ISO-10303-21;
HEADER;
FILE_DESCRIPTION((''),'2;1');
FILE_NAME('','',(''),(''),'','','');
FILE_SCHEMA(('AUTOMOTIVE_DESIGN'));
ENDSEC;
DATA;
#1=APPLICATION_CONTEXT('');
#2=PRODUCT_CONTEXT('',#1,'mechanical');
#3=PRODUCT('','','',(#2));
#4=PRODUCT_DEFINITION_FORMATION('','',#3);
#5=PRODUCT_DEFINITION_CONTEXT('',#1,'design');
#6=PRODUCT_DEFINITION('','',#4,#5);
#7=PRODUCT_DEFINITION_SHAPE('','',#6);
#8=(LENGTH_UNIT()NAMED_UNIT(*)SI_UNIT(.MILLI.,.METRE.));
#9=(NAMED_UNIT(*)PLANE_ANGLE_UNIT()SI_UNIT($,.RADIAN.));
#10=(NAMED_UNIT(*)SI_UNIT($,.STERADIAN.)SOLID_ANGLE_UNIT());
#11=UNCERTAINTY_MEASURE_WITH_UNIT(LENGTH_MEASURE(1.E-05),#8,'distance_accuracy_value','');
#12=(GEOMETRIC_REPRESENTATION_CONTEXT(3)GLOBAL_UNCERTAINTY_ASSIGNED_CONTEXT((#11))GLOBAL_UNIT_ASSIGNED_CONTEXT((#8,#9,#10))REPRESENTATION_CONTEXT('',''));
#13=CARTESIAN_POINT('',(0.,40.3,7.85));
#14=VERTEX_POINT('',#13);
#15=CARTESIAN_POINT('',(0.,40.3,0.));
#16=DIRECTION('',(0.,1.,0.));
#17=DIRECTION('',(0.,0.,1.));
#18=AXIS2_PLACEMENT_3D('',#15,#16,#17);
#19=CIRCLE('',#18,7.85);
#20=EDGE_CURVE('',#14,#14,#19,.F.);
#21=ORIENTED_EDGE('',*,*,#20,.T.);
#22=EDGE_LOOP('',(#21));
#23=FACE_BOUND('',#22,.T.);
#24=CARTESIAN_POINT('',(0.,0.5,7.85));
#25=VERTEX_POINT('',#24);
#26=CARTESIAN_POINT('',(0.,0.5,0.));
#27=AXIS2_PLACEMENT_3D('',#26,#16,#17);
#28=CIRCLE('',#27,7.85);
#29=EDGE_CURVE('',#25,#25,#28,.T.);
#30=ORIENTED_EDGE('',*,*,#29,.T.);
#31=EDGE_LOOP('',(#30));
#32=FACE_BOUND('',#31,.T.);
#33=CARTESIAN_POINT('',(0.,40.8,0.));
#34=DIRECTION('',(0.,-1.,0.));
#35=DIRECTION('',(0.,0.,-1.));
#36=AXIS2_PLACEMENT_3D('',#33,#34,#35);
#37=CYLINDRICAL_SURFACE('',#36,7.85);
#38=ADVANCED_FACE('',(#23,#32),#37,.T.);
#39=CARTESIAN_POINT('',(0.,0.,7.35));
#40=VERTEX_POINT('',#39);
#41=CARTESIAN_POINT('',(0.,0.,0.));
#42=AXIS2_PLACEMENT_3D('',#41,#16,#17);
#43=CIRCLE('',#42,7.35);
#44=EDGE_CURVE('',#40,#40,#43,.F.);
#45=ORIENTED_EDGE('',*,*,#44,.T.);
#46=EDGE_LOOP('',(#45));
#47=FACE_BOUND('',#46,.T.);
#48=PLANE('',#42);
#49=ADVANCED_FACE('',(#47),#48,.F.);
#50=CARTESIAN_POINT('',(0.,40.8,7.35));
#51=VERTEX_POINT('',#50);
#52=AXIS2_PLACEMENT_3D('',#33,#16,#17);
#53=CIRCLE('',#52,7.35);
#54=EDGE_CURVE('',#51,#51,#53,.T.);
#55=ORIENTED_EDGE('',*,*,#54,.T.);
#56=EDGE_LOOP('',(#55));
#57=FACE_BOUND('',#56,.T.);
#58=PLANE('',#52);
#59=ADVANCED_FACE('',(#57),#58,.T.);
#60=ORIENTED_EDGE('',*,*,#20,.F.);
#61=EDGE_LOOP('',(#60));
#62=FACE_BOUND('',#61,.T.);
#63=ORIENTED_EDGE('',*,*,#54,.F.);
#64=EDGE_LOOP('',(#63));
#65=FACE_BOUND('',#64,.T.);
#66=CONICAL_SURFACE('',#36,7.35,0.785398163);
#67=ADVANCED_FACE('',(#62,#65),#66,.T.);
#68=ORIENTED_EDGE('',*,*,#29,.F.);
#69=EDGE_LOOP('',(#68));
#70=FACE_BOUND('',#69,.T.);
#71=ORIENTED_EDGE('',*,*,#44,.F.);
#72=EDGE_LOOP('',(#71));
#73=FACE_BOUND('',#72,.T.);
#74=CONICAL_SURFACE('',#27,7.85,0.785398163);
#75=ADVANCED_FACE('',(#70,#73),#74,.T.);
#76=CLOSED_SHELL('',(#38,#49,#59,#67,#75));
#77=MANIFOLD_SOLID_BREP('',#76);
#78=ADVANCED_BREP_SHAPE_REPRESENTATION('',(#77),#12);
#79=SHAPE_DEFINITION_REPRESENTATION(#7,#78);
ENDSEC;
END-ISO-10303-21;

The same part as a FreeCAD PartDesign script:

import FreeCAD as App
import Part
import Sketcher

V = App.Vector
Q = App.Units.Quantity


def edges_at(feature, points):
    """Names of the edges that pass closest to the given points."""
    edges = feature.Shape.Edges
    near = lambda p: min(range(len(edges)), key=lambda i: edges[i].distToShape(Part.Vertex(*p))[0])
    return sorted({f"Edge{near(p) + 1}" for p in points})

doc = App.newDocument("Part")
body = doc.addObject("PartDesign::Body", "Body")

sketch1 = body.newObject("Sketcher::SketchObject", "Sketch")
sketch1.AttachmentSupport = (doc.getObject("XZ_Plane"), [""])
sketch1.MapMode = "FlatFace"
sketch1.addGeometry(Part.Circle(V(0, 0, 0), V(0, 0, 1), 8), False)
sketch1.addConstraint([
    Sketcher.Constraint("Coincident", 0, 3, -1, 1),
    Sketcher.Constraint("Diameter", 0, Q("15.7 mm")),
])
pad1 = body.newObject("PartDesign::Pad", "Pad")
pad1.Profile = sketch1
pad1.Length = 40.8
pad1.Reversed = True
doc.recompute()

chamfer = body.newObject("PartDesign::Chamfer", "Chamfer")
chamfer.Base = (pad1, edges_at(pad1, [(-7.85, 0, 0), (-7.85, 40.8, 0)]))
chamfer.Size = 0.5

doc.recompute()
